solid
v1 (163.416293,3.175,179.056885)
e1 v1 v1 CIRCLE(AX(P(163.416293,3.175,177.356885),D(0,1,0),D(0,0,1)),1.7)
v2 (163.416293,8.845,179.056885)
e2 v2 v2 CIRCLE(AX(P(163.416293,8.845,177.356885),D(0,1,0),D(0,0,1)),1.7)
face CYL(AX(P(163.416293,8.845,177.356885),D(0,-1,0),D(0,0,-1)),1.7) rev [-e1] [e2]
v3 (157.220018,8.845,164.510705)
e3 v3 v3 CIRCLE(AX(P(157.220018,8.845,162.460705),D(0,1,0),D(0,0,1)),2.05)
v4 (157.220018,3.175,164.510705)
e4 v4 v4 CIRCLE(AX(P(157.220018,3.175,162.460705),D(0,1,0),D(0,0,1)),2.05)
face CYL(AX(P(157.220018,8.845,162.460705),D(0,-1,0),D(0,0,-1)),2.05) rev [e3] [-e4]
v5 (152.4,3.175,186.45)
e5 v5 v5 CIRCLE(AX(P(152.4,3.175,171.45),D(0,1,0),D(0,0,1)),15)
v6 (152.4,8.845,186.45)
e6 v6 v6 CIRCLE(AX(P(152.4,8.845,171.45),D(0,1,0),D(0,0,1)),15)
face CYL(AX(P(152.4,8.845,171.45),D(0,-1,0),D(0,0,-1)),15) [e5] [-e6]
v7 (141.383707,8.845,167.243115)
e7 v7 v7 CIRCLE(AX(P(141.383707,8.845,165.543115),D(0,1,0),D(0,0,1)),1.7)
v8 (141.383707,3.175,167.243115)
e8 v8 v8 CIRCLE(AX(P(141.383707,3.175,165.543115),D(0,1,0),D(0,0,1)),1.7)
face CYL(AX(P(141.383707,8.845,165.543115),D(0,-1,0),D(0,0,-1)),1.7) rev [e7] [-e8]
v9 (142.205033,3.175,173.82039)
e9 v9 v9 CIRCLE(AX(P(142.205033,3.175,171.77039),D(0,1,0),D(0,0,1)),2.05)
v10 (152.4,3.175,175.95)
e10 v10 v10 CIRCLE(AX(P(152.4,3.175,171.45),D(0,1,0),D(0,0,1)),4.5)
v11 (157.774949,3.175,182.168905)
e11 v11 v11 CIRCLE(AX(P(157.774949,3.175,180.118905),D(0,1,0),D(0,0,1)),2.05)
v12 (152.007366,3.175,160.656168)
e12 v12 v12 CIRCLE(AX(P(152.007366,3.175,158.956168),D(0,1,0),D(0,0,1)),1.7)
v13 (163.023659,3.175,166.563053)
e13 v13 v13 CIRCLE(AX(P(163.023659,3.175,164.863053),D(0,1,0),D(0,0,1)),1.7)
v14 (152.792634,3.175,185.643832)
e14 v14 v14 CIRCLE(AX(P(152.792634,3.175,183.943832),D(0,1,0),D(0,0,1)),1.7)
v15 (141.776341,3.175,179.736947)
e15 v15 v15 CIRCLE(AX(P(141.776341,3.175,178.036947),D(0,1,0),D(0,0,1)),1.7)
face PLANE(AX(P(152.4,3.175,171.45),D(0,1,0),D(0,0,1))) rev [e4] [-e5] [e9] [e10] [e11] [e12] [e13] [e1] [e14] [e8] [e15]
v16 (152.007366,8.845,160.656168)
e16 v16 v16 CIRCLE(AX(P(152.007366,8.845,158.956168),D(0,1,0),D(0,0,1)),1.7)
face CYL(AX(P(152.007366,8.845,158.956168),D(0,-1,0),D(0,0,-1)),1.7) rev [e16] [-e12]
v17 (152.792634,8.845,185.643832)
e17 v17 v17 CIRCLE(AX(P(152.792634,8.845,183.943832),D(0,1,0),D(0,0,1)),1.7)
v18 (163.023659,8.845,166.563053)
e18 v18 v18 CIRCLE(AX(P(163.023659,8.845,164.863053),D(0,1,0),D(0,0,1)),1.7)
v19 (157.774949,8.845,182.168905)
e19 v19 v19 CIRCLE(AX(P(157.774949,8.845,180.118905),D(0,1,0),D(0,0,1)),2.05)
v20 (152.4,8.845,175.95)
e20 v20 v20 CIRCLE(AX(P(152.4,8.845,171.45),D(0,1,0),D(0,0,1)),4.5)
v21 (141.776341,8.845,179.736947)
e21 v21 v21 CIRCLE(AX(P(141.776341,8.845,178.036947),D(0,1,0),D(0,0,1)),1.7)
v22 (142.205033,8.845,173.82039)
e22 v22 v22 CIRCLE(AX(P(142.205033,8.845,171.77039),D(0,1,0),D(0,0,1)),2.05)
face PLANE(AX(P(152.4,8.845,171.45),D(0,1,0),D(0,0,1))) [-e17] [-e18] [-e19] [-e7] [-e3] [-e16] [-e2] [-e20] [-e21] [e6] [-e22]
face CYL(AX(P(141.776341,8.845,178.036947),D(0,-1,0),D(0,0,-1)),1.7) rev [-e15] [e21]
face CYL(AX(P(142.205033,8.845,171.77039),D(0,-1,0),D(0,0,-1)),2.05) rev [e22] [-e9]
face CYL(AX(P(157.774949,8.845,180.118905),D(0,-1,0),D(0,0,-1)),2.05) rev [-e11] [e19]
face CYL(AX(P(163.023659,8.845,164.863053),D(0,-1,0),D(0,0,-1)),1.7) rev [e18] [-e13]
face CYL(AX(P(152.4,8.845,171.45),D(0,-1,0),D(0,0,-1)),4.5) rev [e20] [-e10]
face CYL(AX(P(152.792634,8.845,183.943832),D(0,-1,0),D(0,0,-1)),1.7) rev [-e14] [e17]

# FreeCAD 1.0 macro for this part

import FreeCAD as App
import Part
import Sketcher
from FreeCAD import Vector

doc = App.newDocument("Part")
body = doc.addObject("PartDesign::Body", "Body")

# Sketch on XZ plane
sketch1 = body.newObject("Sketcher::SketchObject", "Sketch")
sketch1.AttachmentSupport = (doc.getObject("XZ_Plane"), [""])
sketch1.MapMode = "FlatFace"
sketch1.AttachmentOffset = App.Placement(Vector(0, 0, -3.175), App.Rotation())
sketch1.addGeometry(Part.Circle(Vector(152.4, 171.45, 0), Vector(0, 0, 1), 15), False)
sketch1.addConstraint(Sketcher.Constraint("Diameter", 0, 30.0))
sketch1.addConstraint(Sketcher.Constraint("DistanceX", -1, 1, 0, 3, 152.4))
sketch1.addConstraint(Sketcher.Constraint("DistanceY", -1, 1, 0, 3, 171.45))
pad1 = body.newObject("PartDesign::Pad", "Pad")
pad1.Profile = sketch1
pad1.Length = 5.67
pad1.Reversed = True

# Sketch on XZ plane
sketch2 = body.newObject("Sketcher::SketchObject", "Sketch001")
sketch2.AttachmentSupport = (doc.getObject("XZ_Plane"), [""])
sketch2.MapMode = "FlatFace"
sketch2.AttachmentOffset = App.Placement(Vector(0, 0, -3.175), App.Rotation())
sketch2.addGeometry(Part.Circle(Vector(163.416293, 177.356885, 0), Vector(0, 0, 1), 1.7), False)
sketch2.addGeometry(Part.Circle(Vector(152.792634, 183.943832, 0), Vector(0, 0, 1), 1.7), False)
sketch2.addGeometry(Part.Circle(Vector(141.776341, 178.036947, 0), Vector(0, 0, 1), 1.7), False)
sketch2.addGeometry(Part.Circle(Vector(141.383707, 165.543115, 0), Vector(0, 0, 1), 1.7), False)
sketch2.addGeometry(Part.Circle(Vector(152.007366, 158.956168, 0), Vector(0, 0, 1), 1.7), False)
sketch2.addGeometry(Part.Circle(Vector(163.023659, 164.863053, 0), Vector(0, 0, 1), 1.7), False)
sketch2.addGeometry(Part.Circle(Vector(157.774949, 180.118905, 0), Vector(0, 0, 1), 2.05), False)
sketch2.addGeometry(Part.Circle(Vector(142.205033, 171.77039, 0), Vector(0, 0, 1), 2.05), False)
sketch2.addGeometry(Part.Circle(Vector(157.220018, 162.460705, 0), Vector(0, 0, 1), 2.05), False)
sketch2.addGeometry(Part.Circle(Vector(152.4, 171.45, 0), Vector(0, 0, 1), 4.5), False)
sketch2.addConstraint(Sketcher.Constraint("Equal", 0, 1))
sketch2.addConstraint(Sketcher.Constraint("Equal", 1, 2))
sketch2.addConstraint(Sketcher.Constraint("Equal", 2, 3))
sketch2.addConstraint(Sketcher.Constraint("Equal", 3, 4))
sketch2.addConstraint(Sketcher.Constraint("Equal", 4, 5))
sketch2.addConstraint(Sketcher.Constraint("Equal", 6, 7))
sketch2.addConstraint(Sketcher.Constraint("Equal", 7, 8))
sketch2.addConstraint(Sketcher.Constraint("Diameter", 9, 9.0))
sketch2.addConstraint(Sketcher.Constraint("Diameter", 0, 3.4))
sketch2.addConstraint(Sketcher.Constraint("Diameter", 6, 4.1))
sketch2.addConstraint(Sketcher.Constraint("DistanceX", -1, 1, 9, 3, 152.4))
sketch2.addConstraint(Sketcher.Constraint("DistanceY", -1, 1, 9, 3, 171.45))
sketch2.addConstraint(Sketcher.Constraint("DistanceX", 7, 3, 1, 3, 10.587601))
sketch2.addConstraint(Sketcher.Constraint("DistanceY", 8, 3, 6, 3, 17.658201))
sketch2.addConstraint(Sketcher.Constraint("DistanceX", -1, 1, 2, 3, 141.776341))
sketch2.addConstraint(Sketcher.Constraint("DistanceX", -1, 1, 5, 3, 163.023659))
sketch2.addConstraint(Sketcher.Constraint("DistanceX", -1, 1, 6, 3, 157.774949))
sketch2.addConstraint(Sketcher.Constraint("DistanceY", -1, 1, 7, 3, 171.77039))
sketch2.addConstraint(Sketcher.Constraint("DistanceX", 1, 3, 0, 3, 10.623659))
sketch2.addConstraint(Sketcher.Constraint("DistanceX", 2, 3, 0, 3, 21.639952))
sketch2.addConstraint(Sketcher.Constraint("DistanceY", 3, 3, 0, 3, 11.813769))
sketch2.addConstraint(Sketcher.Constraint("DistanceX", 3, 3, 4, 3, 10.623659))
sketch2.addConstraint(Sketcher.Constraint("DistanceY", 4, 3, 2, 3, 19.080779))
sketch2.addConstraint(Sketcher.Constraint("DistanceX", 4, 3, 1, 3, 0.785269))
sketch2.addConstraint(Sketcher.Constraint("DistanceY", 5, 3, 1, 3, 19.080779))
sketch2.addConstraint(Sketcher.Constraint("DistanceY", 0, 3, 6, 3, 2.762021))
sketch2.addConstraint(Sketcher.Constraint("DistanceY", 2, 3, 6, 3, 2.081958))
sketch2.addConstraint(Sketcher.Constraint("DistanceY", 4, 3, 7, 3, 12.814222))
sketch2.addConstraint(Sketcher.Constraint("DistanceX", 8, 3, 5, 3, 5.803641))
sketch2.addConstraint(Sketcher.Constraint("DistanceY", -1, 1, 1, 3, 183.943832))
pocket1 = body.newObject("PartDesign::Pocket", "Pocket")
pocket1.Profile = sketch2
pocket1.Length = 5.67

doc.recompute()
